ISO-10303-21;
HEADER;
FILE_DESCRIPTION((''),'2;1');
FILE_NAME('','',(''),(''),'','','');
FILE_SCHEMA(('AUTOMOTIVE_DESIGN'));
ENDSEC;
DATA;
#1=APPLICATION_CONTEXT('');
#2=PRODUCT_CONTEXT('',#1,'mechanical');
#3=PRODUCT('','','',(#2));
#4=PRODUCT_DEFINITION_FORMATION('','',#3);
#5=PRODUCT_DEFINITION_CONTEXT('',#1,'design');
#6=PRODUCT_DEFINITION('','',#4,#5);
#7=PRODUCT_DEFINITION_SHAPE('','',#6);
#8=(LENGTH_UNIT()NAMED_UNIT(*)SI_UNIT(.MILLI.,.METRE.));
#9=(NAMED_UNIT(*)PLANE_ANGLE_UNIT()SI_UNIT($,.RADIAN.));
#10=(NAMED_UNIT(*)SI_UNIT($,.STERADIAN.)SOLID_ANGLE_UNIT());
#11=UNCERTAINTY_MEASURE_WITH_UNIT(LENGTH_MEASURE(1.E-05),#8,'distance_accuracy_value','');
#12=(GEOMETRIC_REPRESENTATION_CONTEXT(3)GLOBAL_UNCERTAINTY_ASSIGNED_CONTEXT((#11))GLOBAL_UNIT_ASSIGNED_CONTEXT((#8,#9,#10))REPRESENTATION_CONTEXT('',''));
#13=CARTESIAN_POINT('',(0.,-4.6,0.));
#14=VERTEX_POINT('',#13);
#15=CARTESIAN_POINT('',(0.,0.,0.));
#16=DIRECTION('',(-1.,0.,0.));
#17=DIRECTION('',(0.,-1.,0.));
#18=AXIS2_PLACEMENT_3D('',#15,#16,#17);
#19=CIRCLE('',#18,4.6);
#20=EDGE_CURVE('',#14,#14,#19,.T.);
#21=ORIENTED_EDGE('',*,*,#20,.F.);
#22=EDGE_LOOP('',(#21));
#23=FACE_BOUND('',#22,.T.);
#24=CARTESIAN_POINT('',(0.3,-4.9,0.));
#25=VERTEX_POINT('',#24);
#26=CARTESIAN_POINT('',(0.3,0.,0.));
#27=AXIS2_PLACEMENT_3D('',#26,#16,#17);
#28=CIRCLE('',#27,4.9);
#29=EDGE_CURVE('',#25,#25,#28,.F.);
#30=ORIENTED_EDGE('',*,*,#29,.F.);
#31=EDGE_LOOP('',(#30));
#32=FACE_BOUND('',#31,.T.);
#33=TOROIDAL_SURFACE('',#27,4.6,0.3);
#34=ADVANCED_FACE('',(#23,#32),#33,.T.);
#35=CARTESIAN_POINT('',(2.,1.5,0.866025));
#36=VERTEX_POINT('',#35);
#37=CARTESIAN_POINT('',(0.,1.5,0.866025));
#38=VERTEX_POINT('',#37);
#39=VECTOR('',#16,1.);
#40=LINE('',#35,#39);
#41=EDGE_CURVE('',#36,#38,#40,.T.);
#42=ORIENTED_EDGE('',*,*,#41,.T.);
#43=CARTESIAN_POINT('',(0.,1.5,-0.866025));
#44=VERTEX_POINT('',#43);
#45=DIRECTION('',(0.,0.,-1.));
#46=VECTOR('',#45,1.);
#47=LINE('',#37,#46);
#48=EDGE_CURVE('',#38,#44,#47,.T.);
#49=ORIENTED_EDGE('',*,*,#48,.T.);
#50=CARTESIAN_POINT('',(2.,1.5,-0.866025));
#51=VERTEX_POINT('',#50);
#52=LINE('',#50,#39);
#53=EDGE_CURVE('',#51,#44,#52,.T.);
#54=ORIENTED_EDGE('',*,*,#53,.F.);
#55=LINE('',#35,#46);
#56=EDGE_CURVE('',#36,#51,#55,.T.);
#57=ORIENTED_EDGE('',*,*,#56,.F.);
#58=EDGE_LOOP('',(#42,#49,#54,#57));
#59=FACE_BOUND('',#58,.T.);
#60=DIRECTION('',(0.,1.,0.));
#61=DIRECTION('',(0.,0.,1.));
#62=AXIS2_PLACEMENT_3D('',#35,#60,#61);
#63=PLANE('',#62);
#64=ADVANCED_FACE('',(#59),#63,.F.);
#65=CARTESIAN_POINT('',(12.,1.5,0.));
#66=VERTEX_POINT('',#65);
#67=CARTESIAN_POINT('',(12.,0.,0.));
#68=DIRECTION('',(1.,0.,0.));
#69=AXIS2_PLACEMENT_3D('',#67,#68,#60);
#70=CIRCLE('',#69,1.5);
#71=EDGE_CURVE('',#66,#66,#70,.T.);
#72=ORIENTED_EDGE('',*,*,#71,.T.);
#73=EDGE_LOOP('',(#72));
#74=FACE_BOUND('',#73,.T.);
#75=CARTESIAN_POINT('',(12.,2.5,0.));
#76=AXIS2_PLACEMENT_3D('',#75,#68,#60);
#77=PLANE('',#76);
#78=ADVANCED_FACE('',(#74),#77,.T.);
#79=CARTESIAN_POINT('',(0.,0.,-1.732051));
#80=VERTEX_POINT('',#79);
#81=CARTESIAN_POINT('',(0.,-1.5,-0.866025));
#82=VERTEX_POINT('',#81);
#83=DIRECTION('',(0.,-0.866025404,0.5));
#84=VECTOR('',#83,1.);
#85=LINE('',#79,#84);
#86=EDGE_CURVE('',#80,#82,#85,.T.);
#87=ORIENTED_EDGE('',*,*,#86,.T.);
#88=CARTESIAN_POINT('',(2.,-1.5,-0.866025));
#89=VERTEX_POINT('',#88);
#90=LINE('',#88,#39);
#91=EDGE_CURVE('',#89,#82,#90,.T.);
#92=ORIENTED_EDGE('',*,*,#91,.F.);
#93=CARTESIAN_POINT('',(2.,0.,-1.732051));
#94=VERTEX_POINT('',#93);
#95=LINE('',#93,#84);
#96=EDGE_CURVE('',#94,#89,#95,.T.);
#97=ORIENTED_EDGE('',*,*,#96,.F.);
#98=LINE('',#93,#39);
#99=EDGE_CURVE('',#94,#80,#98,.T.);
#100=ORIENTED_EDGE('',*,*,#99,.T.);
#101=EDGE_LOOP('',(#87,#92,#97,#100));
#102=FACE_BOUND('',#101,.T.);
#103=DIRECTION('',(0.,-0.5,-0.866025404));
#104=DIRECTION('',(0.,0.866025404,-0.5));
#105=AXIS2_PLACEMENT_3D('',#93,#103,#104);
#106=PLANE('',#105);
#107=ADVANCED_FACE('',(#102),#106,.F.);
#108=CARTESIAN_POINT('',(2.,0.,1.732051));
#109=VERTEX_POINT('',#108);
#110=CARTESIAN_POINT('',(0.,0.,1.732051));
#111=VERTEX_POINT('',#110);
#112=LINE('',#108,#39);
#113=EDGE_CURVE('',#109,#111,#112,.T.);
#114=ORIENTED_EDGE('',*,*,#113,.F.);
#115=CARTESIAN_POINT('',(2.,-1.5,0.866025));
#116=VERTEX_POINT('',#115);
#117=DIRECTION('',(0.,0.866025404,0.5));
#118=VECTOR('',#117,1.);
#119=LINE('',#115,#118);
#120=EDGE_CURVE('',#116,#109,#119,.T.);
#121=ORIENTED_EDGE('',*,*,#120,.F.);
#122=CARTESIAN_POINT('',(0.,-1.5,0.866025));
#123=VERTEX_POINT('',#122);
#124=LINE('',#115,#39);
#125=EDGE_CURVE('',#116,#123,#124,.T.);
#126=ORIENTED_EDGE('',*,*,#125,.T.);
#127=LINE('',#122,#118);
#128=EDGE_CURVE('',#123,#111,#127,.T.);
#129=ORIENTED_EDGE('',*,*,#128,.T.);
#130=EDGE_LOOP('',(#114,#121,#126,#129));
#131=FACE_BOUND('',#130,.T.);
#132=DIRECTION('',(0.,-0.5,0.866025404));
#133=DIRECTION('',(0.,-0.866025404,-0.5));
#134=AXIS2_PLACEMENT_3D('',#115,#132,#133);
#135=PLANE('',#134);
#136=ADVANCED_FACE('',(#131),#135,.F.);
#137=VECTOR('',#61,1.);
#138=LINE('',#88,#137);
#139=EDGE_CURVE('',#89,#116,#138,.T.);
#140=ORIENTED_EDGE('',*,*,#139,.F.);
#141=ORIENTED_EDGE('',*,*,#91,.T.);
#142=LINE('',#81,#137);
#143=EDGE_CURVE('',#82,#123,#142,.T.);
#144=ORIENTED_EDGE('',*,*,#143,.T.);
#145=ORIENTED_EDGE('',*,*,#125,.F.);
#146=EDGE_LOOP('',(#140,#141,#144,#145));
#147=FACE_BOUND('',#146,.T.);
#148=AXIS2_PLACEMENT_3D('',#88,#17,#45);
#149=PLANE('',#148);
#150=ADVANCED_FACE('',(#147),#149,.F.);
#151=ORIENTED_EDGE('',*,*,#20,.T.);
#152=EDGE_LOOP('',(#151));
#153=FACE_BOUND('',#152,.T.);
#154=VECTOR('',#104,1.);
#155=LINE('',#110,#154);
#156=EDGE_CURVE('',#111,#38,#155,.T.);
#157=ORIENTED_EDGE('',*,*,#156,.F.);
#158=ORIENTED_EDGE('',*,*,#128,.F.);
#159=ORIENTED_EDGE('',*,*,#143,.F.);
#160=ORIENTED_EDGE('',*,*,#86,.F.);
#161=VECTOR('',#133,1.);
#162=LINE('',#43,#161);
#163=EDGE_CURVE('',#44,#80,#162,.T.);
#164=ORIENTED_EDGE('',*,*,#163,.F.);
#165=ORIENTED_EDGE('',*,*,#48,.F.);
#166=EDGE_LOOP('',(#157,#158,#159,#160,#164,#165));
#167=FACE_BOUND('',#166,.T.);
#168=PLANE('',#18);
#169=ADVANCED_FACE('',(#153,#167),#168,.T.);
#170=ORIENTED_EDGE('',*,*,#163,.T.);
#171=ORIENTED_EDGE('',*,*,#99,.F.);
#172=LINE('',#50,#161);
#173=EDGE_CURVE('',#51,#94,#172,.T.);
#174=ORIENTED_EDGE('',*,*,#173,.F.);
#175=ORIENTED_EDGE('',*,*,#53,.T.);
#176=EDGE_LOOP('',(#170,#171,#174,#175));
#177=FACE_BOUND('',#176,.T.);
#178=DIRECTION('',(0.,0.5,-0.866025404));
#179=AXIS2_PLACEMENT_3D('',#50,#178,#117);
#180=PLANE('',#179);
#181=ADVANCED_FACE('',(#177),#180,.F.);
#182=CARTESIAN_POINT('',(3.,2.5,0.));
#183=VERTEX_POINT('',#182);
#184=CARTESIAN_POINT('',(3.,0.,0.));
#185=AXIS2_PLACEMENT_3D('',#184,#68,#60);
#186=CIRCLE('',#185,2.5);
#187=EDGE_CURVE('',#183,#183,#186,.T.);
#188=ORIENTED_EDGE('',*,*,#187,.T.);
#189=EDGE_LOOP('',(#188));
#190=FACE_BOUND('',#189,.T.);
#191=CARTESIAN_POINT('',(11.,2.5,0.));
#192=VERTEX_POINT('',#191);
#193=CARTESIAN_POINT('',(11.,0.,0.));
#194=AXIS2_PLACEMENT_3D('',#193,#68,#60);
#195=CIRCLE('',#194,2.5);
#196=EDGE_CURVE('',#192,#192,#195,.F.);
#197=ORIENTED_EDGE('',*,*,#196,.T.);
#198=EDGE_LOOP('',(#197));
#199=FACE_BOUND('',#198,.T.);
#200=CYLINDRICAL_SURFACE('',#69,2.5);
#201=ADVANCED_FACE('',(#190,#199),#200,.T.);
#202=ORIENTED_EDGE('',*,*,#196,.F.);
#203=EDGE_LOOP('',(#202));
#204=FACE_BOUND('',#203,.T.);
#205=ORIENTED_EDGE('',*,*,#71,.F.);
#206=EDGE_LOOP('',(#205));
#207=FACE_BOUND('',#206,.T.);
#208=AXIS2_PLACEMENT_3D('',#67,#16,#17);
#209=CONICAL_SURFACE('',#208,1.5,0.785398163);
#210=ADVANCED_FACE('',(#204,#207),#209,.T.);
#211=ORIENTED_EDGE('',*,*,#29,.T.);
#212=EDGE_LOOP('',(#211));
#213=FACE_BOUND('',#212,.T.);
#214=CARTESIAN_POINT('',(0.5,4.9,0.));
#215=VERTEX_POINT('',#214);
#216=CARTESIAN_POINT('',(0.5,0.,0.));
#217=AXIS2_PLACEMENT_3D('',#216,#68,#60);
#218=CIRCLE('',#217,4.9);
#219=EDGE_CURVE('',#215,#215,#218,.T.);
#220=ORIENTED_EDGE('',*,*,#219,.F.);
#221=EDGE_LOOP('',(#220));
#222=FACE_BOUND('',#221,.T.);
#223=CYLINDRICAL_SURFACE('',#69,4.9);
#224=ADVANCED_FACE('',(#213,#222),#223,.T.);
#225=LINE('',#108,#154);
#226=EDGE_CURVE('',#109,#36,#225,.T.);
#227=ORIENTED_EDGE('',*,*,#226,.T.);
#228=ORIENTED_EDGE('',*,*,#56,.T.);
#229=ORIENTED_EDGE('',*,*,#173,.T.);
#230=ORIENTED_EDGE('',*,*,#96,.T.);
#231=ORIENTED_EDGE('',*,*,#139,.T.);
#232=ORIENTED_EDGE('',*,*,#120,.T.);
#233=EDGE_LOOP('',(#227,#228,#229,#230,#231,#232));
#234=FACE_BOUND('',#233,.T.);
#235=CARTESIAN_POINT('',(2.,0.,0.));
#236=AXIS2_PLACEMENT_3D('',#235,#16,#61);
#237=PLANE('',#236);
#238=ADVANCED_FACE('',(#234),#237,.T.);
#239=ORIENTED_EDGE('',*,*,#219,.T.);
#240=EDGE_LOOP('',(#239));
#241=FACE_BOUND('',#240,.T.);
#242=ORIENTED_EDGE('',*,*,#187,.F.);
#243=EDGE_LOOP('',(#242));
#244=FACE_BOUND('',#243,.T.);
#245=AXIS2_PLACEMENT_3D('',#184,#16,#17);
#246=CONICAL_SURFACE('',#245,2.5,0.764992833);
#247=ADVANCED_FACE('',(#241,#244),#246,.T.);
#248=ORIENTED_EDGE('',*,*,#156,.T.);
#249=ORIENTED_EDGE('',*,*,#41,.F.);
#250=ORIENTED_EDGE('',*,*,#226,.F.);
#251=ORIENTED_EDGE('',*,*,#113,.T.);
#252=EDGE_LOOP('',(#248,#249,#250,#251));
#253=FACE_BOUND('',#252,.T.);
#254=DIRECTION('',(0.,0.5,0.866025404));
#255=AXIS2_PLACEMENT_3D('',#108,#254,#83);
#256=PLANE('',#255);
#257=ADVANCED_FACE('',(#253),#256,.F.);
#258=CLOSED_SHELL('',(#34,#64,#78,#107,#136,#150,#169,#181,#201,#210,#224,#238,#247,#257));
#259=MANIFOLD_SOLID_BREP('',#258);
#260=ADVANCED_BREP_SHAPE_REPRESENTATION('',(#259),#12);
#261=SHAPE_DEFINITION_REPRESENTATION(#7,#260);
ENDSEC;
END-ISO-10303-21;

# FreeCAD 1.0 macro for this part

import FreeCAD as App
import Part
import Sketcher
Q = App.Units.Quantity


def edges_at(feature, points):
    """Names of the edges that pass closest to the given points."""
    edges = feature.Shape.Edges
    near = lambda p: min(range(len(edges)), key=lambda i: edges[i].distToShape(Part.Vertex(*p))[0])
    return sorted({f"Edge{near(p) + 1}" for p in points})


def add_polygon(sketch, points):
    """Adds a closed chain of lines whose ends are joined by coincident constraints."""
    first, n = sketch.GeometryCount, len(points)
    for a, b in zip(points, points[1:] + points[:1]):
        sketch.addGeometry(Part.LineSegment(App.Vector(*a, 0), App.Vector(*b, 0)), False)
    for i in range(n):
        sketch.addConstraint(Sketcher.Constraint("Coincident", first + i, 2, first + (i + 1) % n, 1))

doc = App.newDocument("Part")
params = doc.addObject("Spreadsheet::Sheet", "Params")
for row, (alias, value) in enumerate([
    ("sketch1_width", "12 mm"),
    ("sketch1_width2", "9 mm"),
    ("sketch1_width3", "0.5 mm"),
    ("sketch1_height", "4.9 mm"),
    ("sketch1_height2", "2.5 mm"),
    ("revolution_angle", "360 deg"),
    ("pocket1_length", "2 mm"),
    ("fillet_radius", "0.3 mm"),
    ("chamfer_size", "1 mm"),
], start=1):
    params.set(f"A{row}", alias)
    params.set(f"B{row}", "=" + value)
    params.setAlias(f"B{row}", alias)

body = doc.addObject("PartDesign::Body", "Body")

# Sketch on XY plane
sketch1 = body.newObject("Sketcher::SketchObject", "Sketch")
sketch1.AttachmentSupport = (doc.getObject("XY_Plane"), [""])
sketch1.MapMode = "FlatFace"
add_polygon(sketch1, [(0, 4.9), (0, 0), (12, 0), (12, 2.5), (3, 2.5), (0.5, 4.9)])  # lines 0-5
sketch1.addConstraint([
    Sketcher.Constraint("Vertical", 0),
    Sketcher.Constraint("Horizontal", 1),
    Sketcher.Constraint("Vertical", 2),
    Sketcher.Constraint("Horizontal", 3),
    Sketcher.Constraint("Horizontal", 5),
    Sketcher.Constraint("Coincident", 0, 2, -1, 1),
    Sketcher.Constraint("DistanceX", 1, 1, 1, 2, Q("12 mm")),
    Sketcher.Constraint("DistanceX", 3, 2, 3, 1, Q("9 mm")),
    Sketcher.Constraint("DistanceX", 5, 2, 5, 1, Q("0.5 mm")),
    Sketcher.Constraint("DistanceY", 0, 2, 0, 1, Q("4.9 mm")),
    Sketcher.Constraint("DistanceY", 2, 1, 2, 2, Q("2.5 mm")),
])
sketch1.setExpression("Constraints[12]", "Params.sketch1_width")
sketch1.setExpression("Constraints[13]", "Params.sketch1_width2")
sketch1.setExpression("Constraints[14]", "Params.sketch1_width3")
sketch1.setExpression("Constraints[15]", "Params.sketch1_height")
sketch1.setExpression("Constraints[16]", "Params.sketch1_height2")
revolution = body.newObject("PartDesign::Revolution", "Revolution")
revolution.Profile = sketch1
revolution.ReferenceAxis = (sketch1, ["H_Axis"])
revolution.setExpression("Angle", "Params.revolution_angle")

# Sketch on YZ plane
sketch2 = body.newObject("Sketcher::SketchObject", "Sketch001")
sketch2.AttachmentSupport = (doc.getObject("YZ_Plane"), [""])
sketch2.MapMode = "FlatFace"
add_polygon(sketch2, [(1.5, 0.9), (1.5, -0.9), (0, -1.7), (-1.5, -0.9), (-1.5, 0.9), (0, 1.7)])  # lines 0-5
sketch2.addConstraint([
    Sketcher.Constraint("Vertical", 0),
    Sketcher.Constraint("Vertical", 3),
    Sketcher.Constraint("Symmetric", 0, 2, 3, 2, -1, 1),
    Sketcher.Constraint("Symmetric", 1, 2, 4, 2, -1, 1),
    Sketcher.Constraint("PointOnObject", 1, 2, -2),
    Sketcher.Constraint("Parallel", 2, 5),
    Sketcher.Constraint("Horizontal", 0, 2, 2, 2),
    Sketcher.Constraint("Angle", 1, Q("-150 deg")),
    Sketcher.Constraint("DistanceX", 2, 2, 0, 2, Q("3 mm")),
    Sketcher.Constraint("DistanceY", 0, 2, 0, 1, Q("1.732051 mm")),
])
pocket1 = body.newObject("PartDesign::Pocket", "Pocket")
pocket1.Profile = sketch2
pocket1.setExpression("Length", "Params.pocket1_length")
pocket1.Reversed = True
doc.recompute()

fillet = body.newObject("PartDesign::Fillet", "Fillet")
fillet.Base = (pocket1, edges_at(pocket1, [(0, -4.9, 0)]))
fillet.setExpression("Radius", "Params.fillet_radius")
doc.recompute()

chamfer = body.newObject("PartDesign::Chamfer", "Chamfer")
chamfer.Base = (fillet, edges_at(fillet, [(12, -2.5, 0)]))
chamfer.setExpression("Size", "Params.chamfer_size")

doc.recompute()
